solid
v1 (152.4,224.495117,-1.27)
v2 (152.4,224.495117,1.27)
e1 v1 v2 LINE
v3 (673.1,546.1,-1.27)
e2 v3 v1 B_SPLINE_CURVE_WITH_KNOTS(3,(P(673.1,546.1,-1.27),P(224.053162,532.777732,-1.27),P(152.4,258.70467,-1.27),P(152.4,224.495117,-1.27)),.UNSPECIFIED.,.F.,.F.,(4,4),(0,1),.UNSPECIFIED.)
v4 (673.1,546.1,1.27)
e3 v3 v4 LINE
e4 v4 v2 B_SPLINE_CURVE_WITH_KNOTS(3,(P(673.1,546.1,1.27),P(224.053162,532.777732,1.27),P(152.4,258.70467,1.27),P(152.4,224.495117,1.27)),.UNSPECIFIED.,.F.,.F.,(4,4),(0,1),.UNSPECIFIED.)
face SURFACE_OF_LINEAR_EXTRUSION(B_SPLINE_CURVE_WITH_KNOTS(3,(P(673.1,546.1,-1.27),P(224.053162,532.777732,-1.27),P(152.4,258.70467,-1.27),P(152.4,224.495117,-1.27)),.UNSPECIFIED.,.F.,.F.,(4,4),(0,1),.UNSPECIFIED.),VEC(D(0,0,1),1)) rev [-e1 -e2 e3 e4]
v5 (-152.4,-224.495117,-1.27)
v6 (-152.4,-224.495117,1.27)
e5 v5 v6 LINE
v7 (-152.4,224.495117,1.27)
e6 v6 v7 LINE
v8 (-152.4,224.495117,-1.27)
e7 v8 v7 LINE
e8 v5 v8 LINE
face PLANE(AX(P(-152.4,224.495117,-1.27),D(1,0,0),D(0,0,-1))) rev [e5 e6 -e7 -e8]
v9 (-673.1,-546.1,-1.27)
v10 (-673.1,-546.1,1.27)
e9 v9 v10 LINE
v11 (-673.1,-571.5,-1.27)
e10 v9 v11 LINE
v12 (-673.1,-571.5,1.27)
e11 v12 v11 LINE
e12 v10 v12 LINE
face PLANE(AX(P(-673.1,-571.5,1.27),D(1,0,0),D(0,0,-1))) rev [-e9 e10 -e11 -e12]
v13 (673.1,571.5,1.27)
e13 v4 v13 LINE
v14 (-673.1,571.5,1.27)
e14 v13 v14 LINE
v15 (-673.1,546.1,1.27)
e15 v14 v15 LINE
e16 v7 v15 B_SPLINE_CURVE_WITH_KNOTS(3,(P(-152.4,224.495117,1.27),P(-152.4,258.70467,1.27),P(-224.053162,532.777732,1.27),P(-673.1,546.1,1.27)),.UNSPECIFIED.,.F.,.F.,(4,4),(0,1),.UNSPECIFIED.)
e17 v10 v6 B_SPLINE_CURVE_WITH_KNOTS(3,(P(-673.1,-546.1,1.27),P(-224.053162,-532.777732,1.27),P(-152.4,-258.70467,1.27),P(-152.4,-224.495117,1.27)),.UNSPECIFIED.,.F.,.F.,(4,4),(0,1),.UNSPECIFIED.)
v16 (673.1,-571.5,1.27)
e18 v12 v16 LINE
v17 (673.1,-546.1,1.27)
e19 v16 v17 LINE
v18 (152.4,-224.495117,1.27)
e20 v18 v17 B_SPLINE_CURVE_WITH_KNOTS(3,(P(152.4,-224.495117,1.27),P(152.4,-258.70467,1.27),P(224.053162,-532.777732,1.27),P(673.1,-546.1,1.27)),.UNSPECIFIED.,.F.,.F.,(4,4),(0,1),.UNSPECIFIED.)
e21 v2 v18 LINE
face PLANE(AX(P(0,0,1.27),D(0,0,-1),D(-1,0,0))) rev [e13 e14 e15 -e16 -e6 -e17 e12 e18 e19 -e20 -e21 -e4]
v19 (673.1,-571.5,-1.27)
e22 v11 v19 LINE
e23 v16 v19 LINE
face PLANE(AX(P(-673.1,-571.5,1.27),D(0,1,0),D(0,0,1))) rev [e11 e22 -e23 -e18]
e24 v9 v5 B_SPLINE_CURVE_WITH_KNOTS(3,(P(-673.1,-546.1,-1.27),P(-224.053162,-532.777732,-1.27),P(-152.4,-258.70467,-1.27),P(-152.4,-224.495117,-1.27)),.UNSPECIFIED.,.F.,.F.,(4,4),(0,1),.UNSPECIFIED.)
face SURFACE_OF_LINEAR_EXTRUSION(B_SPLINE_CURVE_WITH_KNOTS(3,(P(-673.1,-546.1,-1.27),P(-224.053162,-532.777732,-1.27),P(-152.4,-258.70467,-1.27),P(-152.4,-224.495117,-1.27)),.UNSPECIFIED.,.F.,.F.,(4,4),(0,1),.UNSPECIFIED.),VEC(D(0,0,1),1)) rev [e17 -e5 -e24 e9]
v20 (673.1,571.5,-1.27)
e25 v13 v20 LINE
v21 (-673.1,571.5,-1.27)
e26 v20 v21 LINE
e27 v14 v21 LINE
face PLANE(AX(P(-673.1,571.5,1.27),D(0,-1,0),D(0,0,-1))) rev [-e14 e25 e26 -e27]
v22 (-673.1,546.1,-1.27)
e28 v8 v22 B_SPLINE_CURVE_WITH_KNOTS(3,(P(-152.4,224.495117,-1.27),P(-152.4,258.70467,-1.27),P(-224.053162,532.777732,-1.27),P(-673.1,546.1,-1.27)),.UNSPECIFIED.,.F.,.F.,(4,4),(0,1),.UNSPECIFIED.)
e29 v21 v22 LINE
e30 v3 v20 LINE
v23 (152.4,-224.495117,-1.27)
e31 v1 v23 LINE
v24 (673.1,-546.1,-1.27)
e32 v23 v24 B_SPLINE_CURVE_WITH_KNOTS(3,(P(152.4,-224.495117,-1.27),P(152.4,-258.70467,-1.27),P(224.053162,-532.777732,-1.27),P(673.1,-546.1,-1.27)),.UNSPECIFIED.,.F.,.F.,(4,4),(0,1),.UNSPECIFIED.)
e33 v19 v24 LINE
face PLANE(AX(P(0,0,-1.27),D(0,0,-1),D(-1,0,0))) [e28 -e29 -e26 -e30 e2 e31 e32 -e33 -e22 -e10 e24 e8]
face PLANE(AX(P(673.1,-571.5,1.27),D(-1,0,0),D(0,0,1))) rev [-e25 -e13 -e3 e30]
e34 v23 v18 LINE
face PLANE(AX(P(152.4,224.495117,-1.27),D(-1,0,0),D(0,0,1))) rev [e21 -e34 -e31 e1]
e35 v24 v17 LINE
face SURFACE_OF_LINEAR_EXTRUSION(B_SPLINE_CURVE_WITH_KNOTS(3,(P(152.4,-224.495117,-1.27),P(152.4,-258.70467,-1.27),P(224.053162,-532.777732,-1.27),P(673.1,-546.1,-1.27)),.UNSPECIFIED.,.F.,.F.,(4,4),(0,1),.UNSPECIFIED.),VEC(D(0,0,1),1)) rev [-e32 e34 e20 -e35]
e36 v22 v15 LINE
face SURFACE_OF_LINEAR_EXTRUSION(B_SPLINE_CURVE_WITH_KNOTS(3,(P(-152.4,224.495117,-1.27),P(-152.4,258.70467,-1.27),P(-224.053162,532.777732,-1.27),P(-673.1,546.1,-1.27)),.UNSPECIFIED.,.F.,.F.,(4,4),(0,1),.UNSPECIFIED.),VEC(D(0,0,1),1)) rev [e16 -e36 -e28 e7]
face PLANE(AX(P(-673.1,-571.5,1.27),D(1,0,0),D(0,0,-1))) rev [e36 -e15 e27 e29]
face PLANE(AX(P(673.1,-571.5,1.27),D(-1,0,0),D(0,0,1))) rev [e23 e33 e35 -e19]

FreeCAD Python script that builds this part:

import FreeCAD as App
import Part
import Sketcher
from FreeCAD import Vector
Q = App.Units.Quantity


def add_polygon(sketch, points):
    """Adds a closed chain of lines whose ends are joined by coincident constraints."""
    first, n = sketch.GeometryCount, len(points)
    for a, b in zip(points, points[1:] + points[:1]):
        sketch.addGeometry(Part.LineSegment(App.Vector(*a, 0), App.Vector(*b, 0)), False)
    for i in range(n):
        sketch.addConstraint(Sketcher.Constraint("Coincident", first + i, 2, first + (i + 1) % n, 1))

doc = App.newDocument("Part")
body = doc.addObject("PartDesign::Body", "Body")

# Sketch on XY plane
sketch1 = doc.addObject("Sketcher::SketchObject", "Sketch")
body.addObject(sketch1)
sketch1.AttachmentSupport = (doc.XY_Plane, [""])
sketch1.MapMode = "FlatFace"
add_polygon(sketch1, [(-673, 572), (-673, -572), (673, -572), (673, 572)])  # lines 0-3
sketch1.addConstraint([
    Sketcher.Constraint("Vertical", 0),
    Sketcher.Constraint("Horizontal", 1),
    Sketcher.Constraint("Vertical", 2),
    Sketcher.Constraint("Horizontal", 3),
    Sketcher.Constraint("Symmetric", 0, 2, 2, 2, -1, 1),
    Sketcher.Constraint("DistanceX", 1, 1, 1, 2, Q("53 in")),
    Sketcher.Constraint("DistanceY", 0, 2, 0, 1, Q("45 in")),
])
pad1 = doc.addObject("PartDesign::Pad", "Pad")
body.addObject(pad1)
pad1.Profile = sketch1
pad1.Length = Q("0.1 in")
pad1.Midplane = True

# Sketch on XY plane
sketch2 = doc.addObject("Sketcher::SketchObject", "Sketch001")
body.addObject(sketch2)
sketch2.AttachmentSupport = (doc.XY_Plane, [""])
sketch2.MapMode = "FlatFace"
sketch2.AttachmentOffset = App.Placement(Vector(0, 0, 0.05 * 25.4), App.Rotation())
sketch2.addGeometry([
    Part.LineSegment(Vector(-673.1, 546.1, 0), Vector(-673.1, -546.1, 0)),  # 0
    Part.BSplineCurve([Vector(-152.4, -224.495117, 0), Vector(-152.4, -258.70467, 0), Vector(-224.053162, -532.777732, 0), Vector(-673.1, -546.1, 0)], [4, 4], [0, 1], False, 3, [1, 1, 1, 1], False),  # 1
    Part.LineSegment(Vector(-152.4, -224.495117, 0), Vector(-152.4, 224.495117, 0)),  # 2
    Part.BSplineCurve([Vector(-152.4, 224.495117, 0), Vector(-152.4, 258.70467, 0), Vector(-224.053162, 532.777732, 0), Vector(-673.1, 546.1, 0)], [4, 4], [0, 1], False, 3, [1, 1, 1, 1], False),  # 3
    Part.LineSegment(Vector(673.1, -546.1, 0), Vector(673.1, 546.1, 0)),  # 4
    Part.BSplineCurve([Vector(152.4, 224.495117, 0), Vector(152.4, 258.70467, 0), Vector(224.053162, 532.777732, 0), Vector(673.1, 546.1, 0)], [4, 4], [0, 1], False, 3, [1, 1, 1, 1], False),  # 5
    Part.LineSegment(Vector(152.4, 224.495117, 0), Vector(152.4, -224.495117, 0)),  # 6
    Part.BSplineCurve([Vector(152.4, -224.495117, 0), Vector(152.4, -258.70467, 0), Vector(224.053162, -532.777732, 0), Vector(673.1, -546.1, 0)], [4, 4], [0, 1], False, 3, [1, 1, 1, 1], False),  # 7
], False)
sketch2.addConstraint([
    Sketcher.Constraint("Block", 1),
    Sketcher.Constraint("Block", 3),
    Sketcher.Constraint("Block", 5),
    Sketcher.Constraint("Block", 7),
    Sketcher.Constraint("Coincident", 0, 2, 1, 2),
    Sketcher.Constraint("Coincident", 1, 1, 2, 1),
    Sketcher.Constraint("Coincident", 2, 2, 3, 1),
    Sketcher.Constraint("Coincident", 3, 2, 0, 1),
    Sketcher.Constraint("Coincident", 4, 2, 5, 2),
    Sketcher.Constraint("Coincident", 5, 1, 6, 1),
    Sketcher.Constraint("Coincident", 6, 2, 7, 1),
    Sketcher.Constraint("Coincident", 7, 2, 4, 1),
])
pocket1 = doc.addObject("PartDesign::Pocket", "Pocket")
body.addObject(pocket1)
pocket1.Profile = sketch2
pocket1.Type = "ThroughAll"

doc.recompute()
